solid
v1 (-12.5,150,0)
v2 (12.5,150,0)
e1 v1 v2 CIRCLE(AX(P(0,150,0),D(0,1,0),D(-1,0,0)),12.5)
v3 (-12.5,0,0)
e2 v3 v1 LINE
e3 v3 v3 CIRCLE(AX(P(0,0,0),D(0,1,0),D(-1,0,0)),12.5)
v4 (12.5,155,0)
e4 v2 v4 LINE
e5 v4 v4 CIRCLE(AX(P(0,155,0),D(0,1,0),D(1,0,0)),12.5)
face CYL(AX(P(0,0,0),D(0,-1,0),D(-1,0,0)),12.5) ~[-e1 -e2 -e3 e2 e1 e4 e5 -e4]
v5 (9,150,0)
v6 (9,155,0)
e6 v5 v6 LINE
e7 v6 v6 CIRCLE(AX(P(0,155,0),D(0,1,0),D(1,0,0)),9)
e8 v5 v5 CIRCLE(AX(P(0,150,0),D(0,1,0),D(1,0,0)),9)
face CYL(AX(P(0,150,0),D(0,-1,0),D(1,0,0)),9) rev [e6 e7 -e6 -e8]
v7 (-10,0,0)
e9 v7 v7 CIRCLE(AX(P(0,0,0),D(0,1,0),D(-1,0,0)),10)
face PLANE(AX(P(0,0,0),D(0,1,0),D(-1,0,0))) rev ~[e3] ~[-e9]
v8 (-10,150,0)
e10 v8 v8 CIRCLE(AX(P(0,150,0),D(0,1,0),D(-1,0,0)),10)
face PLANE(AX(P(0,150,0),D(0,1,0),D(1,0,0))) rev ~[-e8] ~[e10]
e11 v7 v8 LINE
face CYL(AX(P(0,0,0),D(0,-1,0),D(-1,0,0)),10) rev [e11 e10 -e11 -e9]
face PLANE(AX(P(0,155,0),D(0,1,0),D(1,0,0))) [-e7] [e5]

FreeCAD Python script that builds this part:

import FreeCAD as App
import Part
import Sketcher

doc = App.newDocument("Part")
params = doc.addObject("Spreadsheet::Sheet", "Params")
for row, (alias, value) in enumerate([
    ("sketch1_diameter", "25 mm"),
    ("sketch1_diameter2", "20 mm"),
    ("pad1_length", "150 mm"),
    ("sketch2_diameter", "18 mm"),
    ("sketch2_diameter2", "25 mm"),
    ("pad2_length", "5 mm"),
], start=1):
    params.set(f"A{row}", alias)
    params.set(f"B{row}", "=" + value)
    params.setAlias(f"B{row}", alias)

body = doc.addObject("PartDesign::Body", "Body")

# Sketch on XZ plane
sketch1 = doc.addObject("Sketcher::SketchObject", "Sketch")
body.addObject(sketch1)
sketch1.AttachmentSupport = (doc.XZ_Plane, [""])
sketch1.MapMode = "FlatFace"
sketch1.addGeometry(Part.Circle(App.Vector(0, 0, 0), App.Vector(0, 0, 1), 12), False)
sketch1.addGeometry(Part.Circle(App.Vector(0, 0, 0), App.Vector(0, 0, 1), 10), False)
sketch1.addConstraint(Sketcher.Constraint("Coincident", 0, 3, -1, 1))
sketch1.addConstraint(Sketcher.Constraint("Coincident", 1, 3, -1, 1))
sketch1.addConstraint(Sketcher.Constraint("Diameter", 0, 25.0))
sketch1.addConstraint(Sketcher.Constraint("Diameter", 1, 20.0))
sketch1.setExpression("Constraints[2]", "Params.sketch1_diameter")
sketch1.setExpression("Constraints[3]", "Params.sketch1_diameter2")
pad1 = doc.addObject("PartDesign::Pad", "Pad")
body.addObject(pad1)
pad1.Profile = sketch1
pad1.setExpression("Length", "Params.pad1_length")
pad1.Reversed = True

# Sketch on XZ plane
sketch2 = doc.addObject("Sketcher::SketchObject", "Sketch001")
body.addObject(sketch2)
sketch2.AttachmentSupport = (doc.XZ_Plane, [""])
sketch2.MapMode = "FlatFace"
sketch2.AttachmentOffset = App.Placement(App.Vector(0, 0, -150), App.Rotation())
sketch2.addGeometry(Part.Circle(App.Vector(0, 0, 0), App.Vector(0, 0, 1), 12), False)
sketch2.addGeometry(Part.Circle(App.Vector(0, 0, 0), App.Vector(0, 0, 1), 9), False)
sketch2.addConstraint(Sketcher.Constraint("Coincident", 0, 3, -1, 1))
sketch2.addConstraint(Sketcher.Constraint("Coincident", 1, 3, -1, 1))
sketch2.addConstraint(Sketcher.Constraint("Diameter", 1, 18.0))
sketch2.addConstraint(Sketcher.Constraint("Diameter", 0, 25.0))
sketch2.setExpression("Constraints[2]", "Params.sketch2_diameter")
sketch2.setExpression("Constraints[3]", "Params.sketch2_diameter2")
pad2 = doc.addObject("PartDesign::Pad", "Pad001")
body.addObject(pad2)
pad2.Profile = sketch2
pad2.setExpression("Length", "Params.pad2_length")
pad2.Reversed = True

doc.recompute()
